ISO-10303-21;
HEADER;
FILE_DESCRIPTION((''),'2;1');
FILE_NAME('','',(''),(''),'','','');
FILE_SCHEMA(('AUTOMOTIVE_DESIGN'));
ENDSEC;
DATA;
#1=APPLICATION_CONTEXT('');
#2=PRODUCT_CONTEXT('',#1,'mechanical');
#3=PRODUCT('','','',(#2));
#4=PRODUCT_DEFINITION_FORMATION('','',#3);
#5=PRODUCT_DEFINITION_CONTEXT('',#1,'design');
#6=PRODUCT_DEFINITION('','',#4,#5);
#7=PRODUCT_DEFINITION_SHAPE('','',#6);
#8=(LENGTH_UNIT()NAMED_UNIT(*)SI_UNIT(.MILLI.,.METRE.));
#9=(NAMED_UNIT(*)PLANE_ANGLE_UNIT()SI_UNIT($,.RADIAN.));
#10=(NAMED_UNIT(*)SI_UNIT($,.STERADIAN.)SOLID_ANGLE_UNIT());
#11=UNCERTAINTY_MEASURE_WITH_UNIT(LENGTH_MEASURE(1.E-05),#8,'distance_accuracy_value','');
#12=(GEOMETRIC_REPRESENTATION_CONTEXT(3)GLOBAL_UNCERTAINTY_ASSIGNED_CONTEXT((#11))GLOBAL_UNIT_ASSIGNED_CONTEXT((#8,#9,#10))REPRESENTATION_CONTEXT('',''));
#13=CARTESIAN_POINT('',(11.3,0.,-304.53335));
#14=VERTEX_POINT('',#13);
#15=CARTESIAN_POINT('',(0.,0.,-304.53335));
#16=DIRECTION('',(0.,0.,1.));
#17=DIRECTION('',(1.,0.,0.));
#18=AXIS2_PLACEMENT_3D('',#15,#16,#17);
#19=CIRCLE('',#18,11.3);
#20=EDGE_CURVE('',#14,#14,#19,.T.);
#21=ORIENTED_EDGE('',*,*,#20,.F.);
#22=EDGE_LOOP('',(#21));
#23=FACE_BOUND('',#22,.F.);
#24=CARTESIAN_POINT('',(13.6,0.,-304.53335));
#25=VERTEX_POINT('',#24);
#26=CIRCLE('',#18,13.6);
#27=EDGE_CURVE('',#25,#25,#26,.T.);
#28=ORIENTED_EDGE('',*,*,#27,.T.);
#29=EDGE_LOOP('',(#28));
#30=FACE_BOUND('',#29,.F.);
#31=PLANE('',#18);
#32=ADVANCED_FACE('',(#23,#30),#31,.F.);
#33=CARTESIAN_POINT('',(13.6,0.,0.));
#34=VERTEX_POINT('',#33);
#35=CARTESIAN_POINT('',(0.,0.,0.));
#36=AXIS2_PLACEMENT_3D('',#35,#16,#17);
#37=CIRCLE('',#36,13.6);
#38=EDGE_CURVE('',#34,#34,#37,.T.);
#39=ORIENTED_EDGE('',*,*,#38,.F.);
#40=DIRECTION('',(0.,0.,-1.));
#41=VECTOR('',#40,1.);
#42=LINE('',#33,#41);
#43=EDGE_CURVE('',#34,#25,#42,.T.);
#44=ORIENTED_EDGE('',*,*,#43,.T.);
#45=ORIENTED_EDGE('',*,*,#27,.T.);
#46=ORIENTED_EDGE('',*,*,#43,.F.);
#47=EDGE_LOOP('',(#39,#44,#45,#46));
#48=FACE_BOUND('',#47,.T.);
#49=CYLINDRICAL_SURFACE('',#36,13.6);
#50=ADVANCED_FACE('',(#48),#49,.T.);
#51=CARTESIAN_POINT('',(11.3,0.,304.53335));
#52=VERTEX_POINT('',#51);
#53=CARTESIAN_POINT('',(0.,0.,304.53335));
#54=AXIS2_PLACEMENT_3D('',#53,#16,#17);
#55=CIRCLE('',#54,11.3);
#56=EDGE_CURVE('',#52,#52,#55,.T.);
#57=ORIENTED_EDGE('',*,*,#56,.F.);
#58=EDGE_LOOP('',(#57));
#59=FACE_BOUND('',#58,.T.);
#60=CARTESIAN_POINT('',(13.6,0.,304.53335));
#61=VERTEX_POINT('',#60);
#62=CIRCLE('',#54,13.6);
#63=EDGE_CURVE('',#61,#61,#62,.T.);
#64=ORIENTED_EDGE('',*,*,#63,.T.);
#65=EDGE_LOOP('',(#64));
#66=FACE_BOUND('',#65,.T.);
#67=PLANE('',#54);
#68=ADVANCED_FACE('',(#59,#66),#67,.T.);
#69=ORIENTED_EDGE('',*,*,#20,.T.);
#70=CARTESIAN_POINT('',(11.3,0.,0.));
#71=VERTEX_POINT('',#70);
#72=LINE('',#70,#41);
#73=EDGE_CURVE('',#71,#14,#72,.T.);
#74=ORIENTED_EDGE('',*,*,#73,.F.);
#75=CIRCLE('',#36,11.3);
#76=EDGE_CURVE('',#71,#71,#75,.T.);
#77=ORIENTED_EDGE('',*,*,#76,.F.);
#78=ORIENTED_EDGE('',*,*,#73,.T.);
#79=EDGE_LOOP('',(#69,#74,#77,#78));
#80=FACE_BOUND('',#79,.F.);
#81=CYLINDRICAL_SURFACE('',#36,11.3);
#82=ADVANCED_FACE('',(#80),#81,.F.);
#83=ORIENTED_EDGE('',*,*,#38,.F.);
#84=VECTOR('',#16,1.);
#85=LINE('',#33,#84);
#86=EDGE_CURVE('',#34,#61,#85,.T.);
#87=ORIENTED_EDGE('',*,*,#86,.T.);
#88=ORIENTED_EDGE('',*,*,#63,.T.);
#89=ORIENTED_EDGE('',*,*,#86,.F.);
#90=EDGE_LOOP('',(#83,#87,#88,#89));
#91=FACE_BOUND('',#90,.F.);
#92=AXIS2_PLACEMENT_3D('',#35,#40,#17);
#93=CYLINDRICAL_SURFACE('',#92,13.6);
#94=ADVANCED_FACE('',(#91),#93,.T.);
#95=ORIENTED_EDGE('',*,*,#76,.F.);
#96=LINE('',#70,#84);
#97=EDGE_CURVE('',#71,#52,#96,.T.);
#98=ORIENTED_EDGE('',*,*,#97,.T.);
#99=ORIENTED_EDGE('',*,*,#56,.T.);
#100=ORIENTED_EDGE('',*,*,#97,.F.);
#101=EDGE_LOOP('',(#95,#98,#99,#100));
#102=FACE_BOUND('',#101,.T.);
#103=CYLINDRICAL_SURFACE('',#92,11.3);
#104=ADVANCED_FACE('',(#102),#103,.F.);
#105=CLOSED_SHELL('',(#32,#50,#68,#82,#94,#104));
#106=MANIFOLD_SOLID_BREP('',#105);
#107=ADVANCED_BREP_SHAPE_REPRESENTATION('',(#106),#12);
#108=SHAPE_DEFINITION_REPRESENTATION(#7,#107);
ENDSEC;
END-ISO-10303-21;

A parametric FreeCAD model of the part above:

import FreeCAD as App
import Part
import Sketcher

doc = App.newDocument("Part")
body = doc.addObject("PartDesign::Body", "Body")

# Sketch on XY plane
sketch1 = body.newObject("Sketcher::SketchObject", "Sketch")
sketch1.AttachmentSupport = (doc.getObject("XY_Plane"), [""])
sketch1.MapMode = "FlatFace"
sketch1.addGeometry(Part.Circle(App.Vector(0, 0, 0), App.Vector(0, 0, 1), 13.6), False)
sketch1.addGeometry(Part.Circle(App.Vector(0, 0, 0), App.Vector(0, 0, 1), 11.3), False)
sketch1.addConstraint(Sketcher.Constraint("Coincident", 0, 3, -1, 1))
sketch1.addConstraint(Sketcher.Constraint("Coincident", 1, 3, -1, 1))
sketch1.addConstraint(Sketcher.Constraint("Diameter", 0, 27.2))
sketch1.addConstraint(Sketcher.Constraint("Diameter", 1, 22.6))
pad1 = body.newObject("PartDesign::Pad", "Pad")
pad1.Profile = sketch1
pad1.Length = 609.0667
pad1.Midplane = True

doc.recompute()
